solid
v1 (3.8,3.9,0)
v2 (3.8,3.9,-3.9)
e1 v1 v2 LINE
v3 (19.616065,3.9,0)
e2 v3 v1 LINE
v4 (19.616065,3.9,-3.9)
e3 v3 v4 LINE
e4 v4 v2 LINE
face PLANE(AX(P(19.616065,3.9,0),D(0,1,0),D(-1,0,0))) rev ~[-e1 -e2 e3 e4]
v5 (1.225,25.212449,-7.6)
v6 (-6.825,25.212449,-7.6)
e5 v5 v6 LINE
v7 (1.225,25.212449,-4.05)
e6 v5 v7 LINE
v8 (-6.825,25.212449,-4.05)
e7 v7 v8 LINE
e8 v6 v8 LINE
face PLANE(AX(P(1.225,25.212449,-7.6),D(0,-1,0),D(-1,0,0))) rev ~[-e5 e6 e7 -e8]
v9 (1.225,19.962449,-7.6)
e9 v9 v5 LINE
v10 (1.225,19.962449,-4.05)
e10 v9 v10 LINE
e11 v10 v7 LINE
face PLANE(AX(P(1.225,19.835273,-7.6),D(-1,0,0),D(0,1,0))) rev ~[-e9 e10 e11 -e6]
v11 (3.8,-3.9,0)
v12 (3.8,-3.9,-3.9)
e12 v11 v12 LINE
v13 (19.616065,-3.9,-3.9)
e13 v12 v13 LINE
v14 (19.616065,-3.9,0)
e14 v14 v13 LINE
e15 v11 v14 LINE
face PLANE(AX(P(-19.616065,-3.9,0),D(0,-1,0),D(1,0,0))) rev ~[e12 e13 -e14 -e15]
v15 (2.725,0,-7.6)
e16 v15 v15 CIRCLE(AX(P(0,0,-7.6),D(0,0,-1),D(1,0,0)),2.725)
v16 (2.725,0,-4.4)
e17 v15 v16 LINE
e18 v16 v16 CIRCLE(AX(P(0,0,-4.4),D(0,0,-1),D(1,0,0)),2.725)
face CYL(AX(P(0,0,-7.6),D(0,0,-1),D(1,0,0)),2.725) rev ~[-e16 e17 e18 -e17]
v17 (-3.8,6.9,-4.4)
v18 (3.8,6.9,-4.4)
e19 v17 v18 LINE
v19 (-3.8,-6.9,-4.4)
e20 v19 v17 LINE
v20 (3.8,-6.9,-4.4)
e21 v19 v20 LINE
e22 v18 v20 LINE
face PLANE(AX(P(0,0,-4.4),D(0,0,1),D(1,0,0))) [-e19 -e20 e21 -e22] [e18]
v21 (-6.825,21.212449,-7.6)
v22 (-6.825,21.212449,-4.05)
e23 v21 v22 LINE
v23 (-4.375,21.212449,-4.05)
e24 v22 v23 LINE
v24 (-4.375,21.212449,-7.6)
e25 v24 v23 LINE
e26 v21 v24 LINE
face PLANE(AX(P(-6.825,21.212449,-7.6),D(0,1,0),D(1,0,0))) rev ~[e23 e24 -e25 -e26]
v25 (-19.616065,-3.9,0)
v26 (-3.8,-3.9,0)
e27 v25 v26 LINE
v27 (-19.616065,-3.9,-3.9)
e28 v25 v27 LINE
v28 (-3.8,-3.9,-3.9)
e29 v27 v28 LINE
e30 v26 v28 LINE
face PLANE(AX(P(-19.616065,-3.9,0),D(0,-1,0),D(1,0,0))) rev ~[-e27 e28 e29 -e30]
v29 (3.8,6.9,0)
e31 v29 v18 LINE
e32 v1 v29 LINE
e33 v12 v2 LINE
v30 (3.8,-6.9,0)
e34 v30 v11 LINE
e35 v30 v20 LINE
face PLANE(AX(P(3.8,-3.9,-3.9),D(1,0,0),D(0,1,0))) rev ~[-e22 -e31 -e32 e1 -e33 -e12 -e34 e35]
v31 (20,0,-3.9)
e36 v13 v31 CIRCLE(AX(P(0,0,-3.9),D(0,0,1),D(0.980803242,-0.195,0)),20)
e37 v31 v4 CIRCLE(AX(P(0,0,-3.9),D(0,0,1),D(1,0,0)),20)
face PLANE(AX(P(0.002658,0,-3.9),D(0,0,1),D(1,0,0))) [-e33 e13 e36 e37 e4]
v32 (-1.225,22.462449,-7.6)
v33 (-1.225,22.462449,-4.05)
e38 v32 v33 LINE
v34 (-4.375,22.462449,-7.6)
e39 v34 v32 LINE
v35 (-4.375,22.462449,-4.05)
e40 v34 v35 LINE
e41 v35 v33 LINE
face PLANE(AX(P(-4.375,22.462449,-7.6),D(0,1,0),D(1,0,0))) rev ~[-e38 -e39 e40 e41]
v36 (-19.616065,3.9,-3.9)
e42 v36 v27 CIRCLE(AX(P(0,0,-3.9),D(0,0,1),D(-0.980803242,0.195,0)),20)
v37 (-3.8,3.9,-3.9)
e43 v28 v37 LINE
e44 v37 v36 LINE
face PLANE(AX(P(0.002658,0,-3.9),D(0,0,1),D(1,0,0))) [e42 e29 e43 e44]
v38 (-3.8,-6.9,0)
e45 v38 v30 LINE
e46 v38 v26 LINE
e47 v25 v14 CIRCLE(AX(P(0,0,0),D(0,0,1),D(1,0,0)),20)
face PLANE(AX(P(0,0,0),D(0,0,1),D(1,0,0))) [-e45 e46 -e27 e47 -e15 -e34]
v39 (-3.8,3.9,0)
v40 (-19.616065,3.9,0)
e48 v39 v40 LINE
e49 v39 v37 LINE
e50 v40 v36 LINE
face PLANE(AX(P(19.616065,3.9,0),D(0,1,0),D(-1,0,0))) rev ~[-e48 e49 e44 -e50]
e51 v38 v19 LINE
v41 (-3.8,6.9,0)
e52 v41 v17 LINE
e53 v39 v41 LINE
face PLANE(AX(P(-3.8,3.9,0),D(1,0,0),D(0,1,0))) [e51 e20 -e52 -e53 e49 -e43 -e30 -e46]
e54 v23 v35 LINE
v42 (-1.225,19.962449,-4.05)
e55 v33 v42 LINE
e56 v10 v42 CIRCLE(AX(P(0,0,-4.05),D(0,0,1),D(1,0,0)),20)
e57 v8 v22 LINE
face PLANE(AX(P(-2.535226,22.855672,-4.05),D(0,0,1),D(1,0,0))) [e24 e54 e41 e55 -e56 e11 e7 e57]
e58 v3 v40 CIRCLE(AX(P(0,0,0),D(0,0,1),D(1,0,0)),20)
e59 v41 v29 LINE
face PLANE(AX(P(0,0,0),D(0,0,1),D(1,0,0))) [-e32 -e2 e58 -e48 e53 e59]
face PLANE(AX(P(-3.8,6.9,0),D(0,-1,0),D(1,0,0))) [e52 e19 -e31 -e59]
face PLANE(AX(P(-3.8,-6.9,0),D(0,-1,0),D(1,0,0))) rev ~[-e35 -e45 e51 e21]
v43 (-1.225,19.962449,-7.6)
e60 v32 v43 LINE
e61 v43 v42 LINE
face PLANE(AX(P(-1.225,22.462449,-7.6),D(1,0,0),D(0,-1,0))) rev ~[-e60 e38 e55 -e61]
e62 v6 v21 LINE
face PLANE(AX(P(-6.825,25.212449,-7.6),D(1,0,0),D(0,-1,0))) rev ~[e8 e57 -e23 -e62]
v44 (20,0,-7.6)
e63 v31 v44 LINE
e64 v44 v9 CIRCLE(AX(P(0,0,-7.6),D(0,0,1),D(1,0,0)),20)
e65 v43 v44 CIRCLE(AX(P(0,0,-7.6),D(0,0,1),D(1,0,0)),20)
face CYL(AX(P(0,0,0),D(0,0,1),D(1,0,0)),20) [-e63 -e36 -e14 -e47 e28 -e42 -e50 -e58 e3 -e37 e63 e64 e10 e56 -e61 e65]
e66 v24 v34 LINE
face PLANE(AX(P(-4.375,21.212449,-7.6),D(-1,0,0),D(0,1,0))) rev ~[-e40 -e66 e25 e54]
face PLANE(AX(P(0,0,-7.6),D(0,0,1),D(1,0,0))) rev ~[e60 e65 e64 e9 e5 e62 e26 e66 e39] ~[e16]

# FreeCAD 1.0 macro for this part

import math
import FreeCAD as App
import Part
import Sketcher

V = App.Vector


def add_polygon(sketch, points):
    """Adds a closed chain of lines whose ends are joined by coincident constraints."""
    first, n = sketch.GeometryCount, len(points)
    for a, b in zip(points, points[1:] + points[:1]):
        sketch.addGeometry(Part.LineSegment(App.Vector(*a, 0), App.Vector(*b, 0)), False)
    for i in range(n):
        sketch.addConstraint(Sketcher.Constraint("Coincident", first + i, 2, first + (i + 1) % n, 1))

doc = App.newDocument("Part")
body = doc.addObject("PartDesign::Body", "Body")

# Sketch on XY plane
sketch1 = body.newObject("Sketcher::SketchObject", "Sketch")
sketch1.AttachmentSupport = (doc.getObject("XY_Plane"), [""])
sketch1.MapMode = "FlatFace"
sketch1.addGeometry(Part.Circle(V(0, 0, 0), V(0, 0, 1), 20), False)
sketch1.addConstraint([
    Sketcher.Constraint("Coincident", 0, 3, -1, 1),
    Sketcher.Constraint("Diameter", 0, 40.0),
])
pad1 = body.newObject("PartDesign::Pad", "Pad")
pad1.Profile = sketch1
pad1.Length = 7.6
pad1.Reversed = True

# Sketch on XY plane
sketch2 = body.newObject("Sketcher::SketchObject", "Sketch001")
sketch2.AttachmentSupport = (doc.getObject("XY_Plane"), [""])
sketch2.MapMode = "FlatFace"
sketch2.addGeometry([
    Part.LineSegment(V(19.6, 3.9, 0), V(-19.6, 3.9, 0)),  # 0
    Part.ArcOfCircle(Part.Circle(V(0, 0, 0), V(0, 0, 1), 20), math.radians(169), math.radians(191)),  # 1
    Part.LineSegment(V(-19.6, -3.9, 0), V(19.6, -3.9, 0)),  # 2
    Part.ArcOfCircle(Part.Circle(V(0, 0, 0), V(0, 0, 1), 20), math.radians(-11.24), math.radians(0)),  # 3
    Part.ArcOfCircle(Part.Circle(V(0, 0, 0), V(0, 0, 1), 20), math.radians(0), math.radians(11.24)),  # 4
], False)
sketch2.addConstraint([
    Sketcher.Constraint("Coincident", 0, 2, 1, 1),
    Sketcher.Constraint("Coincident", 1, 2, 2, 1),
    Sketcher.Constraint("Coincident", 2, 2, 3, 1),
    Sketcher.Constraint("Tangent", 3, 2, 4, 1),
    Sketcher.Constraint("Coincident", 4, 2, 0, 1),
    Sketcher.Constraint("Horizontal", 0),
    Sketcher.Constraint("Horizontal", 2),
    Sketcher.Constraint("Coincident", 1, 3, -1, 1),
    Sketcher.Constraint("Coincident", 3, 3, -1, 1),
    Sketcher.Constraint("Equal", 1, 3),
    Sketcher.Constraint("Equal", 3, 4),
    Sketcher.Constraint("PointOnObject", 3, 2, -1),
    Sketcher.Constraint("Vertical", 0, 2, 1, 2),
    Sketcher.Constraint("Radius", 1, 20.0),
    Sketcher.Constraint("DistanceY", -1, 1, 0, 2, 3.9),
])
pocket1 = body.newObject("PartDesign::Pocket", "Pocket")
pocket1.Profile = sketch2
pocket1.Length = 3.9

# Sketch on XY plane
sketch3 = body.newObject("Sketcher::SketchObject", "Sketch002")
sketch3.AttachmentSupport = (doc.getObject("XY_Plane"), [""])
sketch3.MapMode = "FlatFace"
add_polygon(sketch3, [(-3.8, -3.9), (-3.8, -6.9), (3.8, -6.9), (3.8, -3.9)])  # lines 0-3
add_polygon(sketch3, [(-3.8, 6.9), (-3.8, 3.9), (3.8, 3.9), (3.8, 6.9)])  # lines 4-7
sketch3.addConstraint([
    Sketcher.Constraint("Vertical", 0),
    Sketcher.Constraint("Horizontal", 1),
    Sketcher.Constraint("Vertical", 2),
    Sketcher.Constraint("Horizontal", 3),
    Sketcher.Constraint("Vertical", 4),
    Sketcher.Constraint("Horizontal", 5),
    Sketcher.Constraint("Vertical", 6),
    Sketcher.Constraint("Horizontal", 7),
    Sketcher.Constraint("Symmetric", 2, 2, 4, 2, -1, 1),
    Sketcher.Constraint("Symmetric", 0, 2, 6, 2, -1, 1),
    Sketcher.Constraint("Vertical", 3, 2, 4, 2),
    Sketcher.Constraint("DistanceY", 0, 2, 0, 1, 3.0),
    Sketcher.Constraint("DistanceX", 1, 1, 1, 2, 7.6),
    Sketcher.Constraint("DistanceY", 0, 2, -1, 1, 6.9),
])
pocket2 = body.newObject("PartDesign::Pocket", "Pocket001")
pocket2.Profile = sketch3
pocket2.Length = 4.4

# Sketch on XY plane
sketch4 = body.newObject("Sketcher::SketchObject", "Sketch003")
sketch4.AttachmentSupport = (doc.getObject("XY_Plane"), [""])
sketch4.MapMode = "FlatFace"
sketch4.AttachmentOffset = App.Placement(V(0, 0, -3.9), App.Rotation())
add_polygon(sketch4, [(-4, 4), (-4, -4), (4, -4), (4, 4)])  # lines 0-3
sketch4.addConstraint([
    Sketcher.Constraint("Vertical", 0),
    Sketcher.Constraint("Horizontal", 1),
    Sketcher.Constraint("Vertical", 2),
    Sketcher.Constraint("Horizontal", 3),
    Sketcher.Constraint("Symmetric", 0, 2, 2, 2, -1, 1),
    Sketcher.Constraint("DistanceX", 1, 1, 1, 2, 7.6),
    Sketcher.Constraint("DistanceY", 0, 2, 0, 1, 7.8),
])
pocket3 = body.newObject("PartDesign::Pocket", "Pocket002")
pocket3.Profile = sketch4
pocket3.Length = 0.5

# Sketch on XY plane
sketch5 = body.newObject("Sketcher::SketchObject", "Sketch004")
sketch5.AttachmentSupport = (doc.getObject("XY_Plane"), [""])
sketch5.MapMode = "FlatFace"
sketch5.AttachmentOffset = App.Placement(V(0, 0, -7.6), App.Rotation())
add_polygon(sketch5, [(1.2, 19.8), (1.2, 25.2), (-6.8, 25.2), (-6.8, 21.2), (-4.4, 21.2), (-4.4, 22.5), (-1.2, 22.5), (-1.2, 19.8)])  # lines 0-7
sketch5.addConstraint([
    Sketcher.Constraint("Vertical", 0),
    Sketcher.Constraint("Horizontal", 1),
    Sketcher.Constraint("Vertical", 2),
    Sketcher.Constraint("Horizontal", 3),
    Sketcher.Constraint("Vertical", 4),
    Sketcher.Constraint("Horizontal", 5),
    Sketcher.Constraint("Vertical", 6),
    Sketcher.Constraint("DistanceY", 2, 2, 2, 1, 4.0),
    Sketcher.Constraint("DistanceX", 1, 2, 1, 1, 8.05),
    Sketcher.Constraint("DistanceX", 3, 1, 3, 2, 2.45),
    Sketcher.Constraint("DistanceX", 5, 1, 5, 2, 3.15),
    Sketcher.Constraint("DistanceY", 4, 1, 4, 2, 1.25),
    Sketcher.Constraint("DistanceX", -1, 1, 0, 2, 1.225),
    Sketcher.Constraint("DistanceY", 0, 1, 0, 2, 5.377176),
    Sketcher.Constraint("DistanceY", 6, 2, 6, 1, 2.672234),
    Sketcher.Constraint("DistanceY", -1, 1, 0, 2, 25.212449),
])
pad2 = body.newObject("PartDesign::Pad", "Pad001")
pad2.Profile = sketch5
pad2.Length = 3.55

# Sketch on XY plane
sketch6 = body.newObject("Sketcher::SketchObject", "Sketch005")
sketch6.AttachmentSupport = (doc.getObject("XY_Plane"), [""])
sketch6.MapMode = "FlatFace"
sketch6.AttachmentOffset = App.Placement(V(0, 0, -7.6), App.Rotation())
sketch6.addGeometry(Part.Circle(V(0, 0, 0), V(0, 0, 1), 2.7), False)
sketch6.addConstraint([
    Sketcher.Constraint("Coincident", 0, 3, -1, 1),
    Sketcher.Constraint("Diameter", 0, 5.45),
])
pocket4 = body.newObject("PartDesign::Pocket", "Pocket003")
pocket4.Profile = sketch6
pocket4.Length = 7.6
pocket4.Reversed = True

doc.recompute()
